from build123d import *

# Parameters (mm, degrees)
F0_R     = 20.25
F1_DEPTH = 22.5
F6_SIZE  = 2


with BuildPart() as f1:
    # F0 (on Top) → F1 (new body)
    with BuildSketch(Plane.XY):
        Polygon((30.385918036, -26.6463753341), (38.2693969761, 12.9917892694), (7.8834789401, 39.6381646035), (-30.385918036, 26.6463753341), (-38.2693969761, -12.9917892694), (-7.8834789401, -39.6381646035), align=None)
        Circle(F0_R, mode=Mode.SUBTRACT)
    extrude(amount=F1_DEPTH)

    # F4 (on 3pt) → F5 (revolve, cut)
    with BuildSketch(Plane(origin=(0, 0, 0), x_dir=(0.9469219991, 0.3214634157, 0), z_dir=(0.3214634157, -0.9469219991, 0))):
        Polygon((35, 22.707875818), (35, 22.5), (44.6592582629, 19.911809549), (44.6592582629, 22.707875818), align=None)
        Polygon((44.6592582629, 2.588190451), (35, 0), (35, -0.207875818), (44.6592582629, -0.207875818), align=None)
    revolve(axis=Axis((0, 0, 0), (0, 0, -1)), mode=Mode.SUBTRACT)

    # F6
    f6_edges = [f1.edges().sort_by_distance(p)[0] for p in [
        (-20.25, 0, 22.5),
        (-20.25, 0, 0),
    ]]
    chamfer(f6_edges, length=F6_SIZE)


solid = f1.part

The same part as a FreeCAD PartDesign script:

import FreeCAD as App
import Part
import Sketcher

V = App.Vector
Q = App.Units.Quantity


def edges_at(feature, points):
    """Names of the edges that pass closest to the given points."""
    edges = feature.Shape.Edges
    near = lambda p: min(range(len(edges)), key=lambda i: edges[i].distToShape(Part.Vertex(*p))[0])
    return sorted({f"Edge{near(p) + 1}" for p in points})


def add_polygon(sketch, points):
    """Adds a closed chain of lines whose ends are joined by coincident constraints."""
    first, n = sketch.GeometryCount, len(points)
    for a, b in zip(points, points[1:] + points[:1]):
        sketch.addGeometry(Part.LineSegment(App.Vector(*a, 0), App.Vector(*b, 0)), False)
    for i in range(n):
        sketch.addConstraint(Sketcher.Constraint("Coincident", first + i, 2, first + (i + 1) % n, 1))

doc = App.newDocument("Part")
params = doc.addObject("Spreadsheet::Sheet", "Params")
for row, (alias, value) in enumerate([
    ("sketch1_diameter", "40.5 mm"),
    ("pad1_length", "22.5 mm"),
    ("sketch2_length", "10 mm"),
    ("groove_angle", "360 deg"),
    ("chamfer_size", "2 mm"),
], start=1):
    params.set(f"A{row}", alias)
    params.set(f"B{row}", "=" + value)
    params.setAlias(f"B{row}", alias)

body = doc.addObject("PartDesign::Body", "Body")

sketch1 = body.newObject("Sketcher::SketchObject", "Sketch")
sketch1.AttachmentSupport = (doc.getObject("XY_Plane"), [""])
sketch1.MapMode = "FlatFace"
add_polygon(sketch1, [(30, -27), (38, 13), (8, 40), (-30, 27), (-38, -13), (-8, -40)])
sketch1.addGeometry(Part.Circle(V(0, 0, 0), V(0, 0, 1), 20), False)
sketch1.addConstraint(Sketcher.Constraint("Coincident", 6, 3, -1, 1))
sketch1.addConstraint(Sketcher.Constraint("Symmetric", 0, 2, 3, 2, -1, 1))
sketch1.addConstraint(Sketcher.Constraint("Symmetric", 1, 2, 4, 2, -1, 1))
sketch1.addConstraint(Sketcher.Constraint("Symmetric", 2, 2, 5, 2, -1, 1))
sketch1.addConstraint(Sketcher.Constraint("Equal", 0, 1))
sketch1.addConstraint(Sketcher.Constraint("Equal", 1, 2))
sketch1.addConstraint(Sketcher.Constraint("Diameter", 6, 40.5))
sketch1.addConstraint(Sketcher.Constraint("Distance", 0, 40.414519))
sketch1.addConstraint(Sketcher.Constraint("DistanceY", -1, 1, 0, 2, 12.991789))
sketch1.addConstraint(Sketcher.Constraint("DistanceX", -1, 1, 1, 2, 7.883479))
sketch1.addConstraint(Sketcher.Constraint("DistanceX", 2, 2, -1, 1, 30.385918))
sketch1.setExpression("Constraints[12]", "Params.sketch1_diameter")
pad1 = body.newObject("PartDesign::Pad", "Pad")
pad1.Profile = sketch1
pad1.setExpression("Length", "Params.pad1_length")

sketch2 = body.newObject("Sketcher::SketchObject", "Sketch001")
sketch2.Placement = App.Placement(V(0, 0, 0), App.Rotation(V(0.946921999, 0.321463416, 0), V(0, 0, 1), V(0.321463416, -0.946921999, 0), "ZXY"))
add_polygon(sketch2, [(35, 22.71), (35, 22.5), (44.66, 19.91), (44.66, 22.71)])
add_polygon(sketch2, [(44.66, 2.59), (35, 0), (35, -0.21), (44.66, -0.21)])
sketch2.addConstraint(Sketcher.Constraint("Vertical", 0))
sketch2.addConstraint(Sketcher.Constraint("Vertical", 2))
sketch2.addConstraint(Sketcher.Constraint("Horizontal", 3))
sketch2.addConstraint(Sketcher.Constraint("Vertical", 5))
sketch2.addConstraint(Sketcher.Constraint("Horizontal", 6))
sketch2.addConstraint(Sketcher.Constraint("Vertical", 7))
sketch2.addConstraint(Sketcher.Constraint("PointOnObject", 4, 2, -1))
sketch2.addConstraint(Sketcher.Constraint("Vertical", 3, 2, 4, 2))
sketch2.addConstraint(Sketcher.Constraint("Vertical", 2, 2, 6, 2))
sketch2.addConstraint(Sketcher.Constraint("Equal", 0, 5))
sketch2.addConstraint(Sketcher.Constraint("Equal", 2, 7))
sketch2.addConstraint(Sketcher.Constraint("Angle", 1, Q("-15 deg")))
sketch2.addConstraint(Sketcher.Constraint("Distance", 1, 10.0))
sketch2.addConstraint(Sketcher.Constraint("DistanceX", -1, 1, 0, 2, 35.0))
sketch2.addConstraint(Sketcher.Constraint("DistanceY", -1, 1, 0, 2, 22.5))
sketch2.addConstraint(Sketcher.Constraint("DistanceY", 0, 2, 0, 1, 0.207876))
sketch2.setExpression("Constraints[20]", "Params.sketch2_length")
groove = body.newObject("PartDesign::Groove", "Groove")
groove.Profile = sketch2
groove.ReferenceAxis = (sketch2, ["V_Axis"])
groove.setExpression("Angle", "Params.groove_angle")
doc.recompute()

chamfer = body.newObject("PartDesign::Chamfer", "Chamfer")
chamfer.Base = (groove, edges_at(groove, [(-20.25, 0, 22.5), (-20.25, 0, 0)]))
chamfer.setExpression("Size", "Params.chamfer_size")

doc.recompute()
